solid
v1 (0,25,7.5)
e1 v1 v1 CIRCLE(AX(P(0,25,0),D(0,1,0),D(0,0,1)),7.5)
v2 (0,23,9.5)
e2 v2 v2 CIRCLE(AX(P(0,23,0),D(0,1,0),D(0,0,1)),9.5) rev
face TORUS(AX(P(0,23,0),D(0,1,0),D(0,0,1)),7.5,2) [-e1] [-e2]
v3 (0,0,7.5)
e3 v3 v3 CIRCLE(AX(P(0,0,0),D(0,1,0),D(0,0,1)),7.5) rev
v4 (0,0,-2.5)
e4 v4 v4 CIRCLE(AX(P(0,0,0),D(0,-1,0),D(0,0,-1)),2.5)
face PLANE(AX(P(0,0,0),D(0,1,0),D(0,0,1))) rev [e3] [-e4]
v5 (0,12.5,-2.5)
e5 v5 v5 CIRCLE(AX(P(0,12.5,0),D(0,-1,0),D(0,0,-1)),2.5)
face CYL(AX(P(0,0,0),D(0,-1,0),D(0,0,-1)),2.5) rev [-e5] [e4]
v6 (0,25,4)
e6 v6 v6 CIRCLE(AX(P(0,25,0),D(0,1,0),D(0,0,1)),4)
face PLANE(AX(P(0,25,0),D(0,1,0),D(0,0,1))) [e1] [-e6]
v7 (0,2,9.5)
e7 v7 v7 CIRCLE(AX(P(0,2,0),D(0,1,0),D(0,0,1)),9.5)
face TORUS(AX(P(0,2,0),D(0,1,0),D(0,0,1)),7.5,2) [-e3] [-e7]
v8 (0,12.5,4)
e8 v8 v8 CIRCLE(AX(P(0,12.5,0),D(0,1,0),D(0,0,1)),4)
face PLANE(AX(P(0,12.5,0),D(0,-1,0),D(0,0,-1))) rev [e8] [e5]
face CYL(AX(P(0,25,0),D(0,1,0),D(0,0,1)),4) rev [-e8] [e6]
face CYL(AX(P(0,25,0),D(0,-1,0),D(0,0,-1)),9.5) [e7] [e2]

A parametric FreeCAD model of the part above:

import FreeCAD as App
import Part
import Sketcher

V = App.Vector
Q = App.Units.Quantity


def edges_at(feature, points):
    """Names of the edges that pass closest to the given points."""
    edges = feature.Shape.Edges
    near = lambda p: min(range(len(edges)), key=lambda i: edges[i].distToShape(Part.Vertex(*p))[0])
    return sorted({f"Edge{near(p) + 1}" for p in points})

doc = App.newDocument("Part")
body = doc.addObject("PartDesign::Body", "Body")

sketch1 = doc.addObject("Sketcher::SketchObject", "Sketch")
body.addObject(sketch1)
sketch1.AttachmentSupport = (doc.XZ_Plane, [""])
sketch1.MapMode = "FlatFace"
sketch1.addGeometry(Part.Circle(V(0, 0, 0), V(0, 0, 1), 10), False)
sketch1.addConstraint([
    Sketcher.Constraint("Coincident", 0, 3, -1, 1),
    Sketcher.Constraint("Diameter", 0, Q("19 mm")),
])
pad1 = doc.addObject("PartDesign::Pad", "Pad")
body.addObject(pad1)
pad1.Profile = sketch1
pad1.Length = 25
pad1.Reversed = True
doc.recompute()

fillet = doc.addObject("PartDesign::Fillet", "Fillet")
body.addObject(fillet)
fillet.Base = (pad1, edges_at(pad1, [(0, 0, -9.5), (0, 25, -9.5)]))
fillet.Radius = 2

sketch2 = doc.addObject("Sketcher::SketchObject", "Sketch001")
body.addObject(sketch2)
sketch2.AttachmentSupport = (doc.XZ_Plane, [""])
sketch2.MapMode = "FlatFace"
sketch2.AttachmentOffset = App.Placement(V(0, 0, -25), App.Rotation())
sketch2.addGeometry(Part.Circle(V(0, 0, 0), V(0, 0, 1), 4), False)
sketch2.addConstraint([
    Sketcher.Constraint("Coincident", 0, 3, -1, 1),
    Sketcher.Constraint("Diameter", 0, Q("8 mm")),
])
doc.recompute()
hole = doc.addObject("PartDesign::Hole", "Hole")
body.addObject(hole)
hole.Profile = sketch2
hole.ThreadType = "None"
hole.Diameter = 8
hole.DepthType = "Dimension"
hole.Depth = 12.5
hole.DrillPoint = "Flat"
hole.Reversed = True

sketch3 = doc.addObject("Sketcher::SketchObject", "Sketch002")
body.addObject(sketch3)
sketch3.AttachmentSupport = (doc.XZ_Plane, [""])
sketch3.MapMode = "FlatFace"
sketch3.addGeometry(Part.Circle(V(0, 0, 0), V(0, 0, 1), 2.5), False)
sketch3.addConstraint([
    Sketcher.Constraint("Coincident", 0, 3, -1, 1),
    Sketcher.Constraint("Diameter", 0, Q("5 mm")),
])
doc.recompute()
hole2 = doc.addObject("PartDesign::Hole", "Hole001")
body.addObject(hole2)
hole2.Profile = sketch3
hole2.ThreadType = "None"
hole2.Diameter = 5
hole2.DepthType = "ThroughAll"

doc.recompute()
